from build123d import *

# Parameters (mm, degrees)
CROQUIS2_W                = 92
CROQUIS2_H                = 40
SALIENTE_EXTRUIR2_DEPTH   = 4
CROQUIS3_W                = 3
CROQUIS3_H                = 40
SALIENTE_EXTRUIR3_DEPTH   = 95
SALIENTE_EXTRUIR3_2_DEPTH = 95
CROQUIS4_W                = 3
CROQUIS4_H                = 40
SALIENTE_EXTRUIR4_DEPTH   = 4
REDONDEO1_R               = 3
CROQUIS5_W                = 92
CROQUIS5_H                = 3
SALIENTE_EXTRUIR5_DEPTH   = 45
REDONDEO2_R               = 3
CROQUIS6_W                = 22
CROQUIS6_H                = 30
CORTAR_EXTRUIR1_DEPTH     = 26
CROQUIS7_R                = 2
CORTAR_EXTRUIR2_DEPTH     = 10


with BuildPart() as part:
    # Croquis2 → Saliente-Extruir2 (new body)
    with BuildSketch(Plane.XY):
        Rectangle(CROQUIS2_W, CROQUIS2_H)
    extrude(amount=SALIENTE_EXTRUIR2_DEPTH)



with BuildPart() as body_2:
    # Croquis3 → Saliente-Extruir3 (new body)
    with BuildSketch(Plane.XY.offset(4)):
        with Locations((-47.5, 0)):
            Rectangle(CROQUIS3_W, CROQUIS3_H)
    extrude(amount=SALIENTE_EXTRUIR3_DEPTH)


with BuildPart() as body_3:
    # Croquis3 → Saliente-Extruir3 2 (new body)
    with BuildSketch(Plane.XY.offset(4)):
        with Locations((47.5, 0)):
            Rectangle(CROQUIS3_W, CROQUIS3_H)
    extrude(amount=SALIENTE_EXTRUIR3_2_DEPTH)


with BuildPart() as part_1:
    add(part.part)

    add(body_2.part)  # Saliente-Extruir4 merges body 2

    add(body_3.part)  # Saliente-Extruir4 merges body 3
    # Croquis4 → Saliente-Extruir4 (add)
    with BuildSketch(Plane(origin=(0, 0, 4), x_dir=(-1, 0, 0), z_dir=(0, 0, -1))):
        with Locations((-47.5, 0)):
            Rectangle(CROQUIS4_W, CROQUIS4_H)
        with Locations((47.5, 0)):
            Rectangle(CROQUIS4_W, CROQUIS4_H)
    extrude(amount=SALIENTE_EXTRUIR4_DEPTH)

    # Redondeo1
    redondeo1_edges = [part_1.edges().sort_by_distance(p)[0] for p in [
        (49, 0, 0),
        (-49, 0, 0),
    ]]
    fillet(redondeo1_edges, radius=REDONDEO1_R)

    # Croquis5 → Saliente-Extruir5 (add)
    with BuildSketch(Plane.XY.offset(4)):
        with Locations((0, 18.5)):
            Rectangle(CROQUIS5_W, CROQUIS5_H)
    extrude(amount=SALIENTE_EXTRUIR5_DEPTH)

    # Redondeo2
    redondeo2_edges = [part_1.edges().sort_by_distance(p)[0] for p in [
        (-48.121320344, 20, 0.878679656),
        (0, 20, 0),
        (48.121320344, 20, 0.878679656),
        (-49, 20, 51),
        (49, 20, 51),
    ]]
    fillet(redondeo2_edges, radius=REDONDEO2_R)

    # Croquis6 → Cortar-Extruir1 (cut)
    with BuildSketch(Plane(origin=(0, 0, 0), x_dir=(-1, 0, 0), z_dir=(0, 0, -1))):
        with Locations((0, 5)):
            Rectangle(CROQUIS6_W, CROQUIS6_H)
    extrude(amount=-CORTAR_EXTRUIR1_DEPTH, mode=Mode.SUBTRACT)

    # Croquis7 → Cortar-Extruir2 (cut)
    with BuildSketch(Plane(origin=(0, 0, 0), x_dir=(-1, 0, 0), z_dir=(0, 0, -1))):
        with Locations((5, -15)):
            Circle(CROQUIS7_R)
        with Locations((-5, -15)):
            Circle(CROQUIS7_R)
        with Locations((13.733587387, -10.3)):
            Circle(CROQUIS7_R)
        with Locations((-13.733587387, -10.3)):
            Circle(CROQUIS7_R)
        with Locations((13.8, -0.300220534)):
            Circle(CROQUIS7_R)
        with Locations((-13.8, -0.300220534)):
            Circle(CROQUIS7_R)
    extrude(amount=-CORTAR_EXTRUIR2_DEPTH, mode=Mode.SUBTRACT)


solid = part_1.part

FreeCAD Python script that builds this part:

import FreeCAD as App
import Part
import Sketcher
Q = App.Units.Quantity


def edges_at(feature, points):
    """Names of the edges that pass closest to the given points."""
    edges = feature.Shape.Edges
    near = lambda p: min(range(len(edges)), key=lambda i: edges[i].distToShape(Part.Vertex(*p))[0])
    return sorted({f"Edge{near(p) + 1}" for p in points})

doc = App.newDocument("Part")
body = doc.addObject("PartDesign::Body", "Body")

# Sketch on XY plane
sketch1 = body.newObject("Sketcher::SketchObject", "Sketch")
sketch1.AttachmentSupport = (doc.getObject("XY_Plane"), [""])
sketch1.MapMode = "FlatFace"
sketch1.addGeometry([
    Part.LineSegment(App.Vector(-46, 20, 0), App.Vector(-46, -20, 0)),
    Part.LineSegment(App.Vector(-46, -20, 0), App.Vector(46, -20, 0)),
    Part.LineSegment(App.Vector(46, -20, 0), App.Vector(46, 20, 0)),
    Part.LineSegment(App.Vector(46, 20, 0), App.Vector(-46, 20, 0)),
], False)
sketch1.addConstraint([
    Sketcher.Constraint("Coincident", 0, 2, 1, 1),
    Sketcher.Constraint("Coincident", 1, 2, 2, 1),
    Sketcher.Constraint("Coincident", 2, 2, 3, 1),
    Sketcher.Constraint("Coincident", 3, 2, 0, 1),
    Sketcher.Constraint("Vertical", 0),
    Sketcher.Constraint("Horizontal", 1),
    Sketcher.Constraint("Vertical", 2),
    Sketcher.Constraint("Horizontal", 3),
    Sketcher.Constraint("Symmetric", 0, 2, 2, 2, -1, 1),
    Sketcher.Constraint("DistanceX", 1, 1, 1, 2, Q("92 mm")),
    Sketcher.Constraint("DistanceY", 0, 2, 0, 1, Q("40 mm")),
])
pad1 = body.newObject("PartDesign::Pad", "Pad")
pad1.Profile = sketch1
pad1.Length = 4
body2 = doc.addObject("PartDesign::Body", "Body001")

# Sketch on XY plane
sketch2 = body2.newObject("Sketcher::SketchObject", "Sketch001")
sketch2.AttachmentSupport = (doc.getObject("XY_Plane001"), [""])
sketch2.MapMode = "FlatFace"
sketch2.AttachmentOffset = App.Placement(App.Vector(0, 0, 4), App.Rotation())
sketch2.addGeometry([
    Part.LineSegment(App.Vector(-49, 20, 0), App.Vector(-49, -20, 0)),
    Part.LineSegment(App.Vector(-49, -20, 0), App.Vector(-46, -20, 0)),
    Part.LineSegment(App.Vector(-46, -20, 0), App.Vector(-46, 20, 0)),
    Part.LineSegment(App.Vector(-46, 20, 0), App.Vector(-49, 20, 0)),
], False)
sketch2.addConstraint([
    Sketcher.Constraint("Coincident", 0, 2, 1, 1),
    Sketcher.Constraint("Coincident", 1, 2, 2, 1),
    Sketcher.Constraint("Coincident", 2, 2, 3, 1),
    Sketcher.Constraint("Coincident", 3, 2, 0, 1),
    Sketcher.Constraint("Vertical", 0),
    Sketcher.Constraint("Horizontal", 1),
    Sketcher.Constraint("Vertical", 2),
    Sketcher.Constraint("Horizontal", 3),
    Sketcher.Constraint("DistanceX", 1, 1, 1, 2, Q("3 mm")),
    Sketcher.Constraint("DistanceY", 0, 2, 0, 1, Q("40 mm")),
    Sketcher.Constraint("DistanceX", 0, 2, -1, 1, Q("49 mm")),
    Sketcher.Constraint("DistanceY", 0, 2, -1, 1, Q("20 mm")),
])
pad2 = body2.newObject("PartDesign::Pad", "Pad001")
pad2.Profile = sketch2
pad2.Length = 95
body3 = doc.addObject("PartDesign::Body", "Body002")

# Sketch on XY plane
sketch3 = body3.newObject("Sketcher::SketchObject", "Sketch002")
sketch3.AttachmentSupport = (doc.getObject("XY_Plane002"), [""])
sketch3.MapMode = "FlatFace"
sketch3.AttachmentOffset = App.Placement(App.Vector(0, 0, 4), App.Rotation())
sketch3.addGeometry([
    Part.LineSegment(App.Vector(46, 20, 0), App.Vector(46, -20, 0)),
    Part.LineSegment(App.Vector(46, -20, 0), App.Vector(49, -20, 0)),
    Part.LineSegment(App.Vector(49, -20, 0), App.Vector(49, 20, 0)),
    Part.LineSegment(App.Vector(49, 20, 0), App.Vector(46, 20, 0)),
], False)
sketch3.addConstraint([
    Sketcher.Constraint("Coincident", 0, 2, 1, 1),
    Sketcher.Constraint("Coincident", 1, 2, 2, 1),
    Sketcher.Constraint("Coincident", 2, 2, 3, 1),
    Sketcher.Constraint("Coincident", 3, 2, 0, 1),
    Sketcher.Constraint("Vertical", 0),
    Sketcher.Constraint("Horizontal", 1),
    Sketcher.Constraint("Vertical", 2),
    Sketcher.Constraint("Horizontal", 3),
    Sketcher.Constraint("DistanceX", 1, 1, 1, 2, Q("3 mm")),
    Sketcher.Constraint("DistanceY", 0, 2, 0, 1, Q("40 mm")),
    Sketcher.Constraint("DistanceX", -1, 1, 0, 2, Q("46 mm")),
    Sketcher.Constraint("DistanceY", 0, 2, -1, 1, Q("20 mm")),
])
pad3 = body3.newObject("PartDesign::Pad", "Pad002")
pad3.Profile = sketch3
pad3.Length = 95
body.AllowCompound = True
doc.recompute()

boolean = body.newObject("PartDesign::Boolean", "Boolean")
boolean.Type = "Fuse"
boolean.addObjects([body2])
doc.recompute()

boolean2 = body.newObject("PartDesign::Boolean", "Boolean001")
boolean2.Type = "Fuse"
boolean2.addObjects([body3])

# Sketch on XY plane
sketch4 = body.newObject("Sketcher::SketchObject", "Sketch003")
sketch4.AttachmentSupport = (doc.getObject("XY_Plane"), [""])
sketch4.MapMode = "FlatFace"
sketch4.AttachmentOffset = App.Placement(App.Vector(0, 0, 4), App.Rotation())
sketch4.addGeometry([
    Part.LineSegment(App.Vector(49, 20, 0), App.Vector(49, -20, 0)),  # 0
    Part.LineSegment(App.Vector(49, -20, 0), App.Vector(46, -20, 0)),  # 1
    Part.LineSegment(App.Vector(46, -20, 0), App.Vector(46, 20, 0)),  # 2
    Part.LineSegment(App.Vector(46, 20, 0), App.Vector(49, 20, 0)),  # 3
    Part.LineSegment(App.Vector(-46, 20, 0), App.Vector(-46, -20, 0)),  # 4
    Part.LineSegment(App.Vector(-46, -20, 0), App.Vector(-49, -20, 0)),  # 5
    Part.LineSegment(App.Vector(-49, -20, 0), App.Vector(-49, 20, 0)),  # 6
    Part.LineSegment(App.Vector(-49, 20, 0), App.Vector(-46, 20, 0)),  # 7
], False)
sketch4.addConstraint([
    Sketcher.Constraint("Coincident", 0, 2, 1, 1),
    Sketcher.Constraint("Coincident", 1, 2, 2, 1),
    Sketcher.Constraint("Coincident", 2, 2, 3, 1),
    Sketcher.Constraint("Coincident", 3, 2, 0, 1),
    Sketcher.Constraint("Coincident", 4, 2, 5, 1),
    Sketcher.Constraint("Coincident", 5, 2, 6, 1),
    Sketcher.Constraint("Coincident", 6, 2, 7, 1),
    Sketcher.Constraint("Coincident", 7, 2, 4, 1),
    Sketcher.Constraint("Vertical", 0),
    Sketcher.Constraint("Horizontal", 1),
    Sketcher.Constraint("Vertical", 2),
    Sketcher.Constraint("Horizontal", 3),
    Sketcher.Constraint("Vertical", 4),
    Sketcher.Constraint("Horizontal", 5),
    Sketcher.Constraint("Vertical", 6),
    Sketcher.Constraint("Horizontal", 7),
    Sketcher.Constraint("Symmetric", 2, 2, 4, 2, -1, 1),
    Sketcher.Constraint("Symmetric", 0, 2, 6, 2, -1, 1),
    Sketcher.Constraint("Horizontal", 1, 2, 4, 2),
    Sketcher.Constraint("DistanceX", 1, 2, 1, 1, Q("3 mm")),
    Sketcher.Constraint("DistanceY", 0, 2, 0, 1, Q("40 mm")),
    Sketcher.Constraint("DistanceX", -1, 1, 0, 2, Q("49 mm")),
])
pad4 = body.newObject("PartDesign::Pad", "Pad003")
pad4.Profile = sketch4
pad4.Length = 4
pad4.Reversed = True
doc.recompute()

fillet = body.newObject("PartDesign::Fillet", "Fillet")
fillet.Base = (pad4, edges_at(pad4, [(49, 0, 0), (-49, 0, 0)]))
fillet.Radius = 3

# Sketch on XY plane
sketch5 = body.newObject("Sketcher::SketchObject", "Sketch004")
sketch5.AttachmentSupport = (doc.getObject("XY_Plane"), [""])
sketch5.MapMode = "FlatFace"
sketch5.AttachmentOffset = App.Placement(App.Vector(0, 0, 4), App.Rotation())
sketch5.addGeometry([
    Part.LineSegment(App.Vector(-46, 20, 0), App.Vector(-46, 17, 0)),
    Part.LineSegment(App.Vector(-46, 17, 0), App.Vector(46, 17, 0)),
    Part.LineSegment(App.Vector(46, 17, 0), App.Vector(46, 20, 0)),
    Part.LineSegment(App.Vector(46, 20, 0), App.Vector(-46, 20, 0)),
], False)
sketch5.addConstraint([
    Sketcher.Constraint("Coincident", 0, 2, 1, 1),
    Sketcher.Constraint("Coincident", 1, 2, 2, 1),
    Sketcher.Constraint("Coincident", 2, 2, 3, 1),
    Sketcher.Constraint("Coincident", 3, 2, 0, 1),
    Sketcher.Constraint("Vertical", 0),
    Sketcher.Constraint("Horizontal", 1),
    Sketcher.Constraint("Vertical", 2),
    Sketcher.Constraint("Horizontal", 3),
    Sketcher.Constraint("DistanceX", 1, 1, 1, 2, Q("92 mm")),
    Sketcher.Constraint("DistanceY", 0, 2, 0, 1, Q("3 mm")),
    Sketcher.Constraint("DistanceX", 0, 2, -1, 1, Q("46 mm")),
    Sketcher.Constraint("DistanceY", -1, 1, 0, 2, Q("17 mm")),
])
pad5 = body.newObject("PartDesign::Pad", "Pad004")
pad5.Profile = sketch5
pad5.Length = 45
doc.recompute()

fillet2 = body.newObject("PartDesign::Fillet", "Fillet001")
fillet2.Base = (pad5, edges_at(pad5, [
    (-48.121, 20, 0.879),
    (0, 20, 0),
    (48.121, 20, 0.879),
    (-49, 20, 51),
    (49, 20, 51),
]))
fillet2.Radius = 3

# Sketch on XY plane
sketch6 = body.newObject("Sketcher::SketchObject", "Sketch005")
sketch6.AttachmentSupport = (doc.getObject("XY_Plane"), [""])
sketch6.MapMode = "FlatFace"
sketch6.addGeometry([
    Part.LineSegment(App.Vector(11, 20, 0), App.Vector(11, -10, 0)),
    Part.LineSegment(App.Vector(11, -10, 0), App.Vector(-11, -10, 0)),
    Part.LineSegment(App.Vector(-11, -10, 0), App.Vector(-11, 20, 0)),
    Part.LineSegment(App.Vector(-11, 20, 0), App.Vector(11, 20, 0)),
], False)
sketch6.addConstraint([
    Sketcher.Constraint("Coincident", 0, 2, 1, 1),
    Sketcher.Constraint("Coincident", 1, 2, 2, 1),
    Sketcher.Constraint("Coincident", 2, 2, 3, 1),
    Sketcher.Constraint("Coincident", 3, 2, 0, 1),
    Sketcher.Constraint("Vertical", 0),
    Sketcher.Constraint("Horizontal", 1),
    Sketcher.Constraint("Vertical", 2),
    Sketcher.Constraint("Horizontal", 3),
    Sketcher.Constraint("DistanceX", 1, 2, 1, 1, Q("22 mm")),
    Sketcher.Constraint("DistanceY", 0, 2, 0, 1, Q("30 mm")),
    Sketcher.Constraint("DistanceX", -1, 1, 0, 2, Q("11 mm")),
    Sketcher.Constraint("DistanceY", 0, 2, -1, 1, Q("10 mm")),
])
pocket1 = body.newObject("PartDesign::Pocket", "Pocket")
pocket1.Profile = sketch6
pocket1.Length = 26
pocket1.Reversed = True

# Sketch on XY plane
sketch7 = body.newObject("Sketcher::SketchObject", "Sketch006")
sketch7.AttachmentSupport = (doc.getObject("XY_Plane"), [""])
sketch7.MapMode = "FlatFace"
sketch7.addGeometry([
    Part.Circle(App.Vector(-5, -15, 0), App.Vector(0, 0, 1), 2),  # 0
    Part.Circle(App.Vector(5, -15, 0), App.Vector(0, 0, 1), 2),  # 1
    Part.Circle(App.Vector(-13.7, -10.3, 0), App.Vector(0, 0, 1), 2),  # 2
    Part.Circle(App.Vector(13.7, -10.3, 0), App.Vector(0, 0, 1), 2),  # 3
    Part.Circle(App.Vector(-13.8, -0.3, 0), App.Vector(0, 0, 1), 2),  # 4
    Part.Circle(App.Vector(13.8, -0.3, 0), App.Vector(0, 0, 1), 2),  # 5
], False)
sketch7.addConstraint([
    Sketcher.Constraint("Equal", 0, 1),
    Sketcher.Constraint("Equal", 1, 2),
    Sketcher.Constraint("Equal", 2, 3),
    Sketcher.Constraint("Equal", 3, 4),
    Sketcher.Constraint("Equal", 4, 5),
    Sketcher.Constraint("Symmetric", 0, 3, 1, 3, -2),
    Sketcher.Constraint("Symmetric", 2, 3, 3, 3, -2),
    Sketcher.Constraint("Symmetric", 4, 3, 5, 3, -2),
    Sketcher.Constraint("Diameter", 0, Q("4 mm")),
    Sketcher.Constraint("DistanceX", 0, 3, -1, 1, Q("5 mm")),
    Sketcher.Constraint("DistanceY", 0, 3, -1, 1, Q("15 mm")),
    Sketcher.Constraint("DistanceY", 2, 3, -1, 1, Q("10.3 mm")),
    Sketcher.Constraint("DistanceX", 4, 3, -1, 1, Q("13.8 mm")),
    Sketcher.Constraint("DistanceY", 4, 3, -1, 1, Q("0.300221 mm")),
    Sketcher.Constraint("DistanceX", 2, 3, -1, 1, Q("13.733587 mm")),
])
pocket2 = body.newObject("PartDesign::Pocket", "Pocket001")
pocket2.Profile = sketch7
pocket2.Length = 10
pocket2.Reversed = True

doc.recompute()
